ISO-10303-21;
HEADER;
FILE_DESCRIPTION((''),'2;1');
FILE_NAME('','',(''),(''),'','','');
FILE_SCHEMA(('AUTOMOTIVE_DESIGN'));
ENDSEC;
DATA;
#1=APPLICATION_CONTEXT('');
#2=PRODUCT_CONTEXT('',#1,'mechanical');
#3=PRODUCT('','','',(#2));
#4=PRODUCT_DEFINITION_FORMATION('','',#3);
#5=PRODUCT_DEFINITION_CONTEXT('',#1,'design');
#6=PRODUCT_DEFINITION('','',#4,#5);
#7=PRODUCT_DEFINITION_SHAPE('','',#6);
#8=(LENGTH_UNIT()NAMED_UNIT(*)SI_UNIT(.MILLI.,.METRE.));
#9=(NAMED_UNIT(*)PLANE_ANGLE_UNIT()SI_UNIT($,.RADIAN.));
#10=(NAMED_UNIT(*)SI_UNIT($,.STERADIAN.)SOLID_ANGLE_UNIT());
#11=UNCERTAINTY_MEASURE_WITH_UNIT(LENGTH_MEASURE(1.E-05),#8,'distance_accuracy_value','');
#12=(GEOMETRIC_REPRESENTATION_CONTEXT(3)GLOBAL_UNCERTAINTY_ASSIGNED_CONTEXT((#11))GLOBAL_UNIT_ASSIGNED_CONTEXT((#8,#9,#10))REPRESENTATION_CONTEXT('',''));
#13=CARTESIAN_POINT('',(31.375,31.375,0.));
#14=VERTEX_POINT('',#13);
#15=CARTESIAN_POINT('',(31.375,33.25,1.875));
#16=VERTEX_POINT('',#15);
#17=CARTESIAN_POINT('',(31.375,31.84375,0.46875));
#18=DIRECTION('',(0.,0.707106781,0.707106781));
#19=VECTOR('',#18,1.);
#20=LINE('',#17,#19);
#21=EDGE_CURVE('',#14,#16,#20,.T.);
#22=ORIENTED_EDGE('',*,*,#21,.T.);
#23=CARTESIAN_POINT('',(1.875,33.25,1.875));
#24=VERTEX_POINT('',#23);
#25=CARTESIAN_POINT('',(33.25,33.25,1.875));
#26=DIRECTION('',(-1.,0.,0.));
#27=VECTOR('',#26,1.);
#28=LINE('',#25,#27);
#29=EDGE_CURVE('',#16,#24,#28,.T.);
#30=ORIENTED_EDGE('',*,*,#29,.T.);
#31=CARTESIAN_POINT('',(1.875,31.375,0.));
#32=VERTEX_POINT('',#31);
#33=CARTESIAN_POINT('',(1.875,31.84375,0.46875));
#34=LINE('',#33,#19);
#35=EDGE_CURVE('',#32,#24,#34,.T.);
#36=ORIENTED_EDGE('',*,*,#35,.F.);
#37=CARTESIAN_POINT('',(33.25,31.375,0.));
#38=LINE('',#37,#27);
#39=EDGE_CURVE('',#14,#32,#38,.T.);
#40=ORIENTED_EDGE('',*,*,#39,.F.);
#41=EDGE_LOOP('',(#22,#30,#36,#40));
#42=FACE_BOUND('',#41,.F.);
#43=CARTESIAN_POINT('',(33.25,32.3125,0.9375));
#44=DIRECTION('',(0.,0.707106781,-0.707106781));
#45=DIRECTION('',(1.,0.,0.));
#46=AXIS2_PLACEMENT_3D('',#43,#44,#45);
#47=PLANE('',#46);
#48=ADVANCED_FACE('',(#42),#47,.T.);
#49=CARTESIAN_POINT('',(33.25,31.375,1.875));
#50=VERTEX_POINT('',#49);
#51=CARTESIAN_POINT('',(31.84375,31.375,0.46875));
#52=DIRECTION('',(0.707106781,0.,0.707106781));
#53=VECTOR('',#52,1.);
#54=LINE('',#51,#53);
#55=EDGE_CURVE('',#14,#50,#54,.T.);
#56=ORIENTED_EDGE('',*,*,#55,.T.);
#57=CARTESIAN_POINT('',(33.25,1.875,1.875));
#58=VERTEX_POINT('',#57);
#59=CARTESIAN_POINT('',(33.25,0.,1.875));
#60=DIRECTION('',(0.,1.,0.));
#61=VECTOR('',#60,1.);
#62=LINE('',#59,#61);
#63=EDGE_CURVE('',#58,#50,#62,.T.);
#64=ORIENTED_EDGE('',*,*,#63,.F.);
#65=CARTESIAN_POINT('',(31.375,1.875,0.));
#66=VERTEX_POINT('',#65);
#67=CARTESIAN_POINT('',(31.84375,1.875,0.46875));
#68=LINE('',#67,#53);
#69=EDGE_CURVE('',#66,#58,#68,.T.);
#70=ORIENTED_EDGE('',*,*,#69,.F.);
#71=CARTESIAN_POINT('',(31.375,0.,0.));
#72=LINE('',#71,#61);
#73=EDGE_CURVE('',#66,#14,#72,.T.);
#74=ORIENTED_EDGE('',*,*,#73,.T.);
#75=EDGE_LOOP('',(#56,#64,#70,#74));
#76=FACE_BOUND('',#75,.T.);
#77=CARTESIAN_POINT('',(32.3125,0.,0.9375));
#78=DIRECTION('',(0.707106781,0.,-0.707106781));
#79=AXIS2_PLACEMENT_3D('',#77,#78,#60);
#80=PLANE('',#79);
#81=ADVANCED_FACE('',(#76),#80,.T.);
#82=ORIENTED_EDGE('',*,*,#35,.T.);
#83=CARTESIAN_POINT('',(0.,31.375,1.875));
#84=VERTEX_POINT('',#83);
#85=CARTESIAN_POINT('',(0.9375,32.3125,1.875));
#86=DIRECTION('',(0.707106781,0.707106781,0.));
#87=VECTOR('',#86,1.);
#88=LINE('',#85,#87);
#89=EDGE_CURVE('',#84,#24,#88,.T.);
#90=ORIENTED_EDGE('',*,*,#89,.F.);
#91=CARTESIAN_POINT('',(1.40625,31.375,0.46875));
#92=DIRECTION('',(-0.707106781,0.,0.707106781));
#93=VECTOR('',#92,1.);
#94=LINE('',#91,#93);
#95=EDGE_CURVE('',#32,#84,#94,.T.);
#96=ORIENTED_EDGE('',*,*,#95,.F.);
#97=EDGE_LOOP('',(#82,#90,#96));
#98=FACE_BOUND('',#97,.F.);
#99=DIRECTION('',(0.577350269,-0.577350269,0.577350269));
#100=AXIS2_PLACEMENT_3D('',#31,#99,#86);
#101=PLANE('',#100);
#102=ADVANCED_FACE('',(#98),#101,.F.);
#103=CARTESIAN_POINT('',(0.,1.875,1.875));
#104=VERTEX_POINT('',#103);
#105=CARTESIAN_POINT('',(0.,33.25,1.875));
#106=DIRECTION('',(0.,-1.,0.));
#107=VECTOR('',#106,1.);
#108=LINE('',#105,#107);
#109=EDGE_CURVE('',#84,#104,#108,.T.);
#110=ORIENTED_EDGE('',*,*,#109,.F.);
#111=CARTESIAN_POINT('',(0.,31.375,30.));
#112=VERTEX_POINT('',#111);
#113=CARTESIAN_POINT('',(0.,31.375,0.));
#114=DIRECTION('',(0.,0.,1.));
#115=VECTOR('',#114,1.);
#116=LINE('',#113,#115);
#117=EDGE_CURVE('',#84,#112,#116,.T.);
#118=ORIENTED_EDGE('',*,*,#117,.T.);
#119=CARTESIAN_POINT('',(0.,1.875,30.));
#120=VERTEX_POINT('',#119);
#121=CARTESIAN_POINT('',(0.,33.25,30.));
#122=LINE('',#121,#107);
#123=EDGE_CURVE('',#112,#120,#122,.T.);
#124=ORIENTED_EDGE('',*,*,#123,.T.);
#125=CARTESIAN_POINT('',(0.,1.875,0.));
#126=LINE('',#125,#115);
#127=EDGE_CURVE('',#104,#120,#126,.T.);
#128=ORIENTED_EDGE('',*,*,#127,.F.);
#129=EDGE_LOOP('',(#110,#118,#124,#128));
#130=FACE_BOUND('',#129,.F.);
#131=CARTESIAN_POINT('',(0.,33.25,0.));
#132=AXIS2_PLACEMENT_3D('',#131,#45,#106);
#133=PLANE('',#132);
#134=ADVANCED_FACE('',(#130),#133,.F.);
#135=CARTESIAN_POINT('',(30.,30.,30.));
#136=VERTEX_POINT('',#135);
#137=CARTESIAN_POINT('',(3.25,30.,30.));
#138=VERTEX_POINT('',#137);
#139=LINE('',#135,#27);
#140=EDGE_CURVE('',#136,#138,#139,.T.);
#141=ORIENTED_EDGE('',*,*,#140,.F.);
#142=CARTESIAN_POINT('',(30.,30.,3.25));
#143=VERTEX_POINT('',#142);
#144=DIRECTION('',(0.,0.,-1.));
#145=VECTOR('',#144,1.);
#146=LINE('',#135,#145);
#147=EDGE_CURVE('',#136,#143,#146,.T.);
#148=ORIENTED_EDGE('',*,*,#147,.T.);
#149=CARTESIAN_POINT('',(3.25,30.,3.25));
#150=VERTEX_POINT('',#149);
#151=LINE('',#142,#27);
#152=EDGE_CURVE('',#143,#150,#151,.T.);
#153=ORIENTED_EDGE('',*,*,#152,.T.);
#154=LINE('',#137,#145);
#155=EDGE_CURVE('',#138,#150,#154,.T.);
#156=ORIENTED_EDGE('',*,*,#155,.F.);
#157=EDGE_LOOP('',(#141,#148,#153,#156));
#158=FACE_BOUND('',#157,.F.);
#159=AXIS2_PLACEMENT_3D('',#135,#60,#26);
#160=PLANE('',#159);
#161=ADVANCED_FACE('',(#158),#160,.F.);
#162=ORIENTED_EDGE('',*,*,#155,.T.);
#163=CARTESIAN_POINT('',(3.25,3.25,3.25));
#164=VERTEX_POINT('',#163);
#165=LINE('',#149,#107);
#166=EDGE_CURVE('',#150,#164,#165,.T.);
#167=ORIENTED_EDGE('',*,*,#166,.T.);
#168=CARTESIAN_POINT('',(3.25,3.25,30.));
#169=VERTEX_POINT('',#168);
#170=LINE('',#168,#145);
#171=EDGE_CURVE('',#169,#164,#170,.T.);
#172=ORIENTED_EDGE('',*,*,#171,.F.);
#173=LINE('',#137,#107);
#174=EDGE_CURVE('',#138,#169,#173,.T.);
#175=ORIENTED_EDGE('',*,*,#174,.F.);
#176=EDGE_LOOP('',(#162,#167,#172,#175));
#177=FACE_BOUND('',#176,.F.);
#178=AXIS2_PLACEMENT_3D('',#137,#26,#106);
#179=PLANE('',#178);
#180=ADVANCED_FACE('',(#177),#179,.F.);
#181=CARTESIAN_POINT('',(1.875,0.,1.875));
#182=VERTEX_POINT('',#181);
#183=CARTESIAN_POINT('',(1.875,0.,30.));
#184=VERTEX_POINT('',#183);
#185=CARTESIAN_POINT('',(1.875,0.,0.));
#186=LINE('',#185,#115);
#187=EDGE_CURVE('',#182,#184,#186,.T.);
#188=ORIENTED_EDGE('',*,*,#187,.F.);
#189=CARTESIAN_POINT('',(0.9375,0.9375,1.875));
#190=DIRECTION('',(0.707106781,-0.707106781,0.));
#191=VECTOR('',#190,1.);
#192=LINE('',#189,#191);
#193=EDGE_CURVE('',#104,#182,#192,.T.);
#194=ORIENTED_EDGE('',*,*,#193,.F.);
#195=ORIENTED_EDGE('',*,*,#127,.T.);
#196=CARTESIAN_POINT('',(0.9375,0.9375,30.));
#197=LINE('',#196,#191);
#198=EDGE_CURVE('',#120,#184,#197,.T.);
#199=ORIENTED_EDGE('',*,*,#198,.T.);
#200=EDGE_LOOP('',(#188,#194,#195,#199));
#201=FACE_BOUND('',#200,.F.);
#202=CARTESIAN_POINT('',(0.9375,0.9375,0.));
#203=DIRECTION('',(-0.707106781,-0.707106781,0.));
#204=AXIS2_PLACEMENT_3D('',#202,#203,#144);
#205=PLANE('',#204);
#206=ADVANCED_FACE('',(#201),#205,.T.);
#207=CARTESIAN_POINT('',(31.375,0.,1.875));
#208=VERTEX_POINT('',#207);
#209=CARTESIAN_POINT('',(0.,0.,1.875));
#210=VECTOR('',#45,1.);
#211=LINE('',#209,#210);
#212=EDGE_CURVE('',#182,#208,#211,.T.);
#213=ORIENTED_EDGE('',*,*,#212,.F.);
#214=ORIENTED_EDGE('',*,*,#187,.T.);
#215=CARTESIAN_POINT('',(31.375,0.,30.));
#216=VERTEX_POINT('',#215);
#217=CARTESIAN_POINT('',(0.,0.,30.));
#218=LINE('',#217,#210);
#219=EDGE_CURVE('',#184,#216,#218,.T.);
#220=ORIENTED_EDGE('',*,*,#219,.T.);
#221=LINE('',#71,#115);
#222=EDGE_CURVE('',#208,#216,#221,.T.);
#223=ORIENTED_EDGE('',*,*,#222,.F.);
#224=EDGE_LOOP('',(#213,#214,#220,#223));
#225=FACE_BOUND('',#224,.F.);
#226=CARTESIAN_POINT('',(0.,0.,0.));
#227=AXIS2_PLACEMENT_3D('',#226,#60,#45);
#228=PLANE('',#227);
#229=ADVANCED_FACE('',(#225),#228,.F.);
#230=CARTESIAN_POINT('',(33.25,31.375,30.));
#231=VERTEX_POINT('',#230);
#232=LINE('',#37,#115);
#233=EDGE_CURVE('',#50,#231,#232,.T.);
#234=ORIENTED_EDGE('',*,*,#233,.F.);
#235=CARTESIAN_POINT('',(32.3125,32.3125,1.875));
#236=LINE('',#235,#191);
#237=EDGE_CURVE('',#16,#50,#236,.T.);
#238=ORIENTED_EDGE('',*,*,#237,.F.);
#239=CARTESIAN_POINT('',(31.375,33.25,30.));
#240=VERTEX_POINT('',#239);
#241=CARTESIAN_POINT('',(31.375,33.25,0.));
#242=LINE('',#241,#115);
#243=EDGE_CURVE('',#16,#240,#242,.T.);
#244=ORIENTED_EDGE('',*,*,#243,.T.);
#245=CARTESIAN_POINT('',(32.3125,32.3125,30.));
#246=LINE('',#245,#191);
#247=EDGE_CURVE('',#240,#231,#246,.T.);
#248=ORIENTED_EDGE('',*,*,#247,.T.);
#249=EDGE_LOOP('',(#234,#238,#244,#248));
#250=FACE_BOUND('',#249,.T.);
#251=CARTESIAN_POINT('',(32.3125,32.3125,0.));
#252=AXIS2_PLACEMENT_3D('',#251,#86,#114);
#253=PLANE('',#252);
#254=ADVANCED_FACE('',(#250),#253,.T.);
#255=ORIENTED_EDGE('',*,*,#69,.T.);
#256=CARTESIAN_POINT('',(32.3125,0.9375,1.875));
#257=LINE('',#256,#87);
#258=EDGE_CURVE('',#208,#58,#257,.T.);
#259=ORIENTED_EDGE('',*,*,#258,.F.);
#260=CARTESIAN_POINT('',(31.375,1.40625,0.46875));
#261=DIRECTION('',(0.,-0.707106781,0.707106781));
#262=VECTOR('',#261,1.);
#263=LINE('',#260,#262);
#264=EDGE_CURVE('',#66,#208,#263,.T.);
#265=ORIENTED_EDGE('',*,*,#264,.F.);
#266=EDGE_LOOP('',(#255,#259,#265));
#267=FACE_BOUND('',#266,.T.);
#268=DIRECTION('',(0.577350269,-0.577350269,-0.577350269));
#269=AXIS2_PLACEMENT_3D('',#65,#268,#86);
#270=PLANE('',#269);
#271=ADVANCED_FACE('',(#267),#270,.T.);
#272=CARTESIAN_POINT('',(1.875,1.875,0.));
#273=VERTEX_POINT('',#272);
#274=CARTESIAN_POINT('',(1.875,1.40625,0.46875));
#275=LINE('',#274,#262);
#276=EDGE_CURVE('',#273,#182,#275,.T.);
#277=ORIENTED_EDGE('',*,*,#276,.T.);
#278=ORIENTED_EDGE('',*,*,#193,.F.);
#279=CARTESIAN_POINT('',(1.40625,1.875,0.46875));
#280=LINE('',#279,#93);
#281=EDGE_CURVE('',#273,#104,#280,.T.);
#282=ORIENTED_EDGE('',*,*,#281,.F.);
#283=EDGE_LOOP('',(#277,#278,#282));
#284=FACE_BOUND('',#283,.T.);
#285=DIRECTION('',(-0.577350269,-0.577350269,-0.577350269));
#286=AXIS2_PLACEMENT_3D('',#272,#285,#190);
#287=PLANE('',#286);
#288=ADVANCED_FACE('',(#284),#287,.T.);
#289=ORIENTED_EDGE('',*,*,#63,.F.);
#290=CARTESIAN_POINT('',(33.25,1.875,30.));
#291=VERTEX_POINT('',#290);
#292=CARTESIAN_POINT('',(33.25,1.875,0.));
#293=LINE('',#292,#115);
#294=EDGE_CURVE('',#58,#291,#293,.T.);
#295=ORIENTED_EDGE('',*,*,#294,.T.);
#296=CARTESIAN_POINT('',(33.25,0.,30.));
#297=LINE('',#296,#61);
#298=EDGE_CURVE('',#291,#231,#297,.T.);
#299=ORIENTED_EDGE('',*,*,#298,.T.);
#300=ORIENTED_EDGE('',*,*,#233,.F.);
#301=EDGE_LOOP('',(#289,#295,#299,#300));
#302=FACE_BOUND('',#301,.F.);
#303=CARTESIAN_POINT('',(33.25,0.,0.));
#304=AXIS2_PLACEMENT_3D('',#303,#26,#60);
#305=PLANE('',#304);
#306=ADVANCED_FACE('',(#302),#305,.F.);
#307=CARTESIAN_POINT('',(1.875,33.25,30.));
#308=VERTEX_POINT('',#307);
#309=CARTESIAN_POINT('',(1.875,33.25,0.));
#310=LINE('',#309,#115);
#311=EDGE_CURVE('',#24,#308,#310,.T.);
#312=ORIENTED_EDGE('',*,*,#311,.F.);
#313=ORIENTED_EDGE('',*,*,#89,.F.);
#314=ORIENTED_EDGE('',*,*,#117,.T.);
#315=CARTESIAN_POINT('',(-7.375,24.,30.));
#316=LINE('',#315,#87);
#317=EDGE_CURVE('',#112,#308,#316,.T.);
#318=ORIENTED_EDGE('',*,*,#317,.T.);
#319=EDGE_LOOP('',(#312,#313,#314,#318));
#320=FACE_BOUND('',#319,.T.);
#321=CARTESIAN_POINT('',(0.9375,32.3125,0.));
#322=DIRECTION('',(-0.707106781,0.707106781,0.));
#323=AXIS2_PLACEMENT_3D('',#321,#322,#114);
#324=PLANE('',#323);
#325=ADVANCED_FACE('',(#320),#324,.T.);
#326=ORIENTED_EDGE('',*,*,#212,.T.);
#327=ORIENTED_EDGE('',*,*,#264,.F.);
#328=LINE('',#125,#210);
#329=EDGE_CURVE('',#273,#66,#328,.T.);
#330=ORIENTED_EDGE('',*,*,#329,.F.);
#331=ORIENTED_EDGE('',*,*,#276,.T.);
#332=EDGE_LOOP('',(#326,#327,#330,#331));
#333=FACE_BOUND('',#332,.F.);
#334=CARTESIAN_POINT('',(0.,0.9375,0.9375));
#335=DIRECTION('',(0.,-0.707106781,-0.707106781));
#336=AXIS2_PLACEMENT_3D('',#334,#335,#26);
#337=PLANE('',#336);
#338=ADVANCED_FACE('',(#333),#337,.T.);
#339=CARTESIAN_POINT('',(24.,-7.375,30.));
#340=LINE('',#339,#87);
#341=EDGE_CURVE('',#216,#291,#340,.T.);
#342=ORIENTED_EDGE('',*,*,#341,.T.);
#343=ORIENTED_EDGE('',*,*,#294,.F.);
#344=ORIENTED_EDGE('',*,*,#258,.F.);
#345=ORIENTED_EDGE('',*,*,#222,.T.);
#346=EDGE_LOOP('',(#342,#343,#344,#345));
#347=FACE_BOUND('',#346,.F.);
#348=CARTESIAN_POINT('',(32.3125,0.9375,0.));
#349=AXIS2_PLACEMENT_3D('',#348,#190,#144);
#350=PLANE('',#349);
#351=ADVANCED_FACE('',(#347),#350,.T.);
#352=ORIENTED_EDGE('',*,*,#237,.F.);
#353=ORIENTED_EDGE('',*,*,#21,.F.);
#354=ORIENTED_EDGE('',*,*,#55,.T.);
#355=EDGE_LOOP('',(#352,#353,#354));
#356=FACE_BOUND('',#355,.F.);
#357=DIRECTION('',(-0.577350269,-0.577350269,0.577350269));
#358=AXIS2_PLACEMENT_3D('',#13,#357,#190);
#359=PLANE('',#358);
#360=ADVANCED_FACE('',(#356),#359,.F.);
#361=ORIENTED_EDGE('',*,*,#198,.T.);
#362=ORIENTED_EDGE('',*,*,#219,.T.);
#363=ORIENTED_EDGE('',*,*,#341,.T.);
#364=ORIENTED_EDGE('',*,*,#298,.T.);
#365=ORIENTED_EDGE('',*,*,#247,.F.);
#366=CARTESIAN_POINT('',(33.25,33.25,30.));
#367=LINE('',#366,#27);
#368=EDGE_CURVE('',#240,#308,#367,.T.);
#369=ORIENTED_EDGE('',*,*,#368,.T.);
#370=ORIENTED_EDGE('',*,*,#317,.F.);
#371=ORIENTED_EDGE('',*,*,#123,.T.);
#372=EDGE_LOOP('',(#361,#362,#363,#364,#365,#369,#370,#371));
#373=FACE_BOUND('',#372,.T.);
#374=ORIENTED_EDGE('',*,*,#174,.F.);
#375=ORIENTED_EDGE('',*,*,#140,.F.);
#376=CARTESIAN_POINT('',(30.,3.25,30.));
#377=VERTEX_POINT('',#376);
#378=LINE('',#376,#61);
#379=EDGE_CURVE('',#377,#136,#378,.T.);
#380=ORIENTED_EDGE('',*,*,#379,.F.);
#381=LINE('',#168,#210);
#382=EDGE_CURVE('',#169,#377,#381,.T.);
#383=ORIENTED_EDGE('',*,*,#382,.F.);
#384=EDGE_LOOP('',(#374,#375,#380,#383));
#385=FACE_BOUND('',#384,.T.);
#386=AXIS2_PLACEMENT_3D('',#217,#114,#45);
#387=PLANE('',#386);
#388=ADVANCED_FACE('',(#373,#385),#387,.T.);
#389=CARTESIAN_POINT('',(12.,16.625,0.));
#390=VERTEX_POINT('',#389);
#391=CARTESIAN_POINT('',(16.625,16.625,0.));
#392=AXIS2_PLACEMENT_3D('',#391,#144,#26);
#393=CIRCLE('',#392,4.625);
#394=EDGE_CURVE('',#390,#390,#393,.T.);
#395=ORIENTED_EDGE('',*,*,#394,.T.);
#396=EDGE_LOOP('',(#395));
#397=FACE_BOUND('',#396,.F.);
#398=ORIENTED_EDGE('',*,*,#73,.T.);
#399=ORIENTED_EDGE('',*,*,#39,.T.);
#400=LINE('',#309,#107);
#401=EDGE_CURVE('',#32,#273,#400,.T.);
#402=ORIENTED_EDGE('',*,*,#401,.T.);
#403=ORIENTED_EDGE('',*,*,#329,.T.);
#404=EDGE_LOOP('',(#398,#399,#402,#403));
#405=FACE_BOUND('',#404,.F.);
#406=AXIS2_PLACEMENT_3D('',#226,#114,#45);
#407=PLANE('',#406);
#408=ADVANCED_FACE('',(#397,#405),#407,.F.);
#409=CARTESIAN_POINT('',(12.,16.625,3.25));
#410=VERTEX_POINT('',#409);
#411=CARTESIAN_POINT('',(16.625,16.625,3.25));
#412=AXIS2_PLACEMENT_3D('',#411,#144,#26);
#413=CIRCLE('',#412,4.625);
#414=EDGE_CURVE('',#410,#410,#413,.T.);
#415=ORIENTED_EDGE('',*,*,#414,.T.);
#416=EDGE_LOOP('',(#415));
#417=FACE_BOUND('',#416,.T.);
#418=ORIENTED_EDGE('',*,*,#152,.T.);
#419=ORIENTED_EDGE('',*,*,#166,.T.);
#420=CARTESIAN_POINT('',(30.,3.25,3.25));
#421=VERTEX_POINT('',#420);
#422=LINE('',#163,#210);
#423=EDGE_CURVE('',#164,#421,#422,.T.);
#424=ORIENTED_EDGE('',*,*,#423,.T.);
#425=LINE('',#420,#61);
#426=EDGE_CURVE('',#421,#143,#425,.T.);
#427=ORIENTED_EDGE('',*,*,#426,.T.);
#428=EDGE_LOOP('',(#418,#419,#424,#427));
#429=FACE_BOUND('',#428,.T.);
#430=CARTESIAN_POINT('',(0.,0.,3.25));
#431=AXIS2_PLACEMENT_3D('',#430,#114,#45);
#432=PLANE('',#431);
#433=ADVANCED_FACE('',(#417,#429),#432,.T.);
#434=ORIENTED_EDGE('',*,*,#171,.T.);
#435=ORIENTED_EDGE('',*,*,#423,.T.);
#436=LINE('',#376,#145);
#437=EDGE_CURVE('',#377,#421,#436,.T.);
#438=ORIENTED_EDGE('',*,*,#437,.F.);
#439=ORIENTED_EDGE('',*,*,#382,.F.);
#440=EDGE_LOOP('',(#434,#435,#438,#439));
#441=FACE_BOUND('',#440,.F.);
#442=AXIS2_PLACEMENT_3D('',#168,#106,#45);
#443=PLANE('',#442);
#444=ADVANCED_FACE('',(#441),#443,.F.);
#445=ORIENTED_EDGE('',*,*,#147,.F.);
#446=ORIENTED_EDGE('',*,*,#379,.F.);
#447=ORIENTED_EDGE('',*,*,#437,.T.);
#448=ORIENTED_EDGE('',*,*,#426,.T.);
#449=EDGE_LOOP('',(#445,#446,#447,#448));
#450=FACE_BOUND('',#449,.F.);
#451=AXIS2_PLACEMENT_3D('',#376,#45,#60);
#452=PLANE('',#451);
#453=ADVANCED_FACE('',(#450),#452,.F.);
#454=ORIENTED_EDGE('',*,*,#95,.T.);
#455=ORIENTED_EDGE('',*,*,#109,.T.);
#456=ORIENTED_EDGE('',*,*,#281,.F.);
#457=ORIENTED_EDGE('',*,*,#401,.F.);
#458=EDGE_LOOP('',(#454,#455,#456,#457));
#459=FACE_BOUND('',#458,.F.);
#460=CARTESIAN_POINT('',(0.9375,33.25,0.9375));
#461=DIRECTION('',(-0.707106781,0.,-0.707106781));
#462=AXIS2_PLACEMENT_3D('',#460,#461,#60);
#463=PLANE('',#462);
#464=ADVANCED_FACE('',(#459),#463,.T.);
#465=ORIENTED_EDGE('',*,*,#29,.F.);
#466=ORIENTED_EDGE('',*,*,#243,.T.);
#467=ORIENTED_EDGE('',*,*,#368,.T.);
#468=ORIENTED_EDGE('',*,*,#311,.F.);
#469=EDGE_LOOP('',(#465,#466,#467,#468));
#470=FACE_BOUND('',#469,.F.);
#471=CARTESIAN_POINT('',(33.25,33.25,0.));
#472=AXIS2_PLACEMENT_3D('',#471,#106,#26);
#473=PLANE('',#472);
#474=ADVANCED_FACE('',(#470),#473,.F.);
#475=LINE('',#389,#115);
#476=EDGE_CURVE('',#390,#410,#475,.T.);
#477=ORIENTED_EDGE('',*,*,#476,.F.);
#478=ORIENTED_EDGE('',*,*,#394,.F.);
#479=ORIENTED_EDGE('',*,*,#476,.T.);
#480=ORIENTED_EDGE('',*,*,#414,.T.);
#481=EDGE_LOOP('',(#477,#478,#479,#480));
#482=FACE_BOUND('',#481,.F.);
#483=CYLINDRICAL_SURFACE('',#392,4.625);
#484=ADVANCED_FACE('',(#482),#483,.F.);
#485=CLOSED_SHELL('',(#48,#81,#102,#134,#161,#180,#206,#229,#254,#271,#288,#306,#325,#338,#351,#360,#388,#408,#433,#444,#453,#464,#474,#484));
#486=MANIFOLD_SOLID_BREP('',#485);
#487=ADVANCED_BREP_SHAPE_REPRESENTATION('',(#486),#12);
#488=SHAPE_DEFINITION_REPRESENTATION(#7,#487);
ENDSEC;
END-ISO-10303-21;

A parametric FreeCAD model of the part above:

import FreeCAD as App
import Part
import Sketcher

V = App.Vector


def edges_at(feature, points):
    """Names of the edges that pass closest to the given points."""
    edges = feature.Shape.Edges
    near = lambda p: min(range(len(edges)), key=lambda i: edges[i].distToShape(Part.Vertex(*p))[0])
    return sorted({f"Edge{near(p) + 1}" for p in points})


def add_polygon(sketch, points):
    """Adds a closed chain of lines whose ends are joined by coincident constraints."""
    first, n = sketch.GeometryCount, len(points)
    for a, b in zip(points, points[1:] + points[:1]):
        sketch.addGeometry(Part.LineSegment(App.Vector(*a, 0), App.Vector(*b, 0)), False)
    for i in range(n):
        sketch.addConstraint(Sketcher.Constraint("Coincident", first + i, 2, first + (i + 1) % n, 1))

doc = App.newDocument("Part")
params = doc.addObject("Spreadsheet::Sheet", "Params")
for row, (alias, value) in enumerate([
    ("sketch1_width", "33.25 mm"),
    ("pad1_length", "30 mm"),
    ("sketch2_width", "26.75 mm"),
    ("pocket1_length", "26.75 mm"),
    ("chamfer_size", "1.875 mm"),
    ("sketch3_diameter", "9.25 mm"),
    ("pocket2_length", "10 mm"),
], start=1):
    params.set(f"A{row}", alias)
    params.set(f"B{row}", "=" + value)
    params.setAlias(f"B{row}", alias)

body = doc.addObject("PartDesign::Body", "Body")

sketch1 = body.newObject("Sketcher::SketchObject", "Sketch")
sketch1.AttachmentSupport = (doc.getObject("XY_Plane"), [""])
sketch1.MapMode = "FlatFace"
add_polygon(sketch1, [(0, 33), (0, 0), (33, 0), (33, 33)])
sketch1.addConstraint(Sketcher.Constraint("Vertical", 0))
sketch1.addConstraint(Sketcher.Constraint("Horizontal", 1))
sketch1.addConstraint(Sketcher.Constraint("Vertical", 2))
sketch1.addConstraint(Sketcher.Constraint("Horizontal", 3))
sketch1.addConstraint(Sketcher.Constraint("Coincident", 0, 2, -1, 1))
sketch1.addConstraint(Sketcher.Constraint("Equal", 3, 0))
sketch1.addConstraint(Sketcher.Constraint("DistanceX", 1, 1, 1, 2, 33.25))
sketch1.setExpression("Constraints[10]", "Params.sketch1_width")
pad1 = body.newObject("PartDesign::Pad", "Pad")
pad1.Profile = sketch1
pad1.setExpression("Length", "Params.pad1_length")

sketch2 = body.newObject("Sketcher::SketchObject", "Sketch001")
sketch2.AttachmentSupport = (doc.getObject("XY_Plane"), [""])
sketch2.MapMode = "FlatFace"
sketch2.AttachmentOffset = App.Placement(V(0, 0, 30), App.Rotation())
add_polygon(sketch2, [(3, 30), (3, 3), (30, 3), (30, 30)])
sketch2.addConstraint(Sketcher.Constraint("Vertical", 0))
sketch2.addConstraint(Sketcher.Constraint("Horizontal", 1))
sketch2.addConstraint(Sketcher.Constraint("Vertical", 2))
sketch2.addConstraint(Sketcher.Constraint("Horizontal", 3))
sketch2.addConstraint(Sketcher.Constraint("Equal", 3, 0))
sketch2.addConstraint(Sketcher.Constraint("DistanceX", 1, 1, 1, 2, 26.75))
sketch2.addConstraint(Sketcher.Constraint("DistanceX", -1, 1, 1, 2, 30.0))
sketch2.addConstraint(Sketcher.Constraint("DistanceY", -1, 1, 2, 2, 30.0))
sketch2.setExpression("Constraints[9]", "Params.sketch2_width")
pocket1 = body.newObject("PartDesign::Pocket", "Pocket")
pocket1.Profile = sketch2
pocket1.setExpression("Length", "Params.pocket1_length")
doc.recompute()

chamfer = body.newObject("PartDesign::Chamfer", "Chamfer")
chamfer.Base = (pocket1, edges_at(pocket1, [
    (33.25, 33.25, 15),
    (33.25, 0, 15),
    (0, 33.25, 15),
    (0, 0, 15),
    (0, 16.625, 0),
    (16.625, 33.25, 0),
    (16.625, 0, 0),
    (33.25, 16.625, 0),
]))
chamfer.setExpression("Size", "Params.chamfer_size")

sketch3 = body.newObject("Sketcher::SketchObject", "Sketch002")
sketch3.AttachmentSupport = (doc.getObject("XY_Plane"), [""])
sketch3.MapMode = "FlatFace"
sketch3.addGeometry(Part.Circle(V(16.6, 16.6, 0), V(0, 0, 1), 4.6), False)
sketch3.addConstraint(Sketcher.Constraint("Diameter", 0, 9.25))
sketch3.addConstraint(Sketcher.Constraint("DistanceX", -1, 1, 0, 3, 16.625))
sketch3.addConstraint(Sketcher.Constraint("DistanceY", -1, 1, 0, 3, 16.625))
sketch3.setExpression("Constraints[0]", "Params.sketch3_diameter")
pocket2 = body.newObject("PartDesign::Pocket", "Pocket001")
pocket2.Profile = sketch3
pocket2.setExpression("Length", "Params.pocket2_length")
pocket2.Reversed = True

doc.recompute()
